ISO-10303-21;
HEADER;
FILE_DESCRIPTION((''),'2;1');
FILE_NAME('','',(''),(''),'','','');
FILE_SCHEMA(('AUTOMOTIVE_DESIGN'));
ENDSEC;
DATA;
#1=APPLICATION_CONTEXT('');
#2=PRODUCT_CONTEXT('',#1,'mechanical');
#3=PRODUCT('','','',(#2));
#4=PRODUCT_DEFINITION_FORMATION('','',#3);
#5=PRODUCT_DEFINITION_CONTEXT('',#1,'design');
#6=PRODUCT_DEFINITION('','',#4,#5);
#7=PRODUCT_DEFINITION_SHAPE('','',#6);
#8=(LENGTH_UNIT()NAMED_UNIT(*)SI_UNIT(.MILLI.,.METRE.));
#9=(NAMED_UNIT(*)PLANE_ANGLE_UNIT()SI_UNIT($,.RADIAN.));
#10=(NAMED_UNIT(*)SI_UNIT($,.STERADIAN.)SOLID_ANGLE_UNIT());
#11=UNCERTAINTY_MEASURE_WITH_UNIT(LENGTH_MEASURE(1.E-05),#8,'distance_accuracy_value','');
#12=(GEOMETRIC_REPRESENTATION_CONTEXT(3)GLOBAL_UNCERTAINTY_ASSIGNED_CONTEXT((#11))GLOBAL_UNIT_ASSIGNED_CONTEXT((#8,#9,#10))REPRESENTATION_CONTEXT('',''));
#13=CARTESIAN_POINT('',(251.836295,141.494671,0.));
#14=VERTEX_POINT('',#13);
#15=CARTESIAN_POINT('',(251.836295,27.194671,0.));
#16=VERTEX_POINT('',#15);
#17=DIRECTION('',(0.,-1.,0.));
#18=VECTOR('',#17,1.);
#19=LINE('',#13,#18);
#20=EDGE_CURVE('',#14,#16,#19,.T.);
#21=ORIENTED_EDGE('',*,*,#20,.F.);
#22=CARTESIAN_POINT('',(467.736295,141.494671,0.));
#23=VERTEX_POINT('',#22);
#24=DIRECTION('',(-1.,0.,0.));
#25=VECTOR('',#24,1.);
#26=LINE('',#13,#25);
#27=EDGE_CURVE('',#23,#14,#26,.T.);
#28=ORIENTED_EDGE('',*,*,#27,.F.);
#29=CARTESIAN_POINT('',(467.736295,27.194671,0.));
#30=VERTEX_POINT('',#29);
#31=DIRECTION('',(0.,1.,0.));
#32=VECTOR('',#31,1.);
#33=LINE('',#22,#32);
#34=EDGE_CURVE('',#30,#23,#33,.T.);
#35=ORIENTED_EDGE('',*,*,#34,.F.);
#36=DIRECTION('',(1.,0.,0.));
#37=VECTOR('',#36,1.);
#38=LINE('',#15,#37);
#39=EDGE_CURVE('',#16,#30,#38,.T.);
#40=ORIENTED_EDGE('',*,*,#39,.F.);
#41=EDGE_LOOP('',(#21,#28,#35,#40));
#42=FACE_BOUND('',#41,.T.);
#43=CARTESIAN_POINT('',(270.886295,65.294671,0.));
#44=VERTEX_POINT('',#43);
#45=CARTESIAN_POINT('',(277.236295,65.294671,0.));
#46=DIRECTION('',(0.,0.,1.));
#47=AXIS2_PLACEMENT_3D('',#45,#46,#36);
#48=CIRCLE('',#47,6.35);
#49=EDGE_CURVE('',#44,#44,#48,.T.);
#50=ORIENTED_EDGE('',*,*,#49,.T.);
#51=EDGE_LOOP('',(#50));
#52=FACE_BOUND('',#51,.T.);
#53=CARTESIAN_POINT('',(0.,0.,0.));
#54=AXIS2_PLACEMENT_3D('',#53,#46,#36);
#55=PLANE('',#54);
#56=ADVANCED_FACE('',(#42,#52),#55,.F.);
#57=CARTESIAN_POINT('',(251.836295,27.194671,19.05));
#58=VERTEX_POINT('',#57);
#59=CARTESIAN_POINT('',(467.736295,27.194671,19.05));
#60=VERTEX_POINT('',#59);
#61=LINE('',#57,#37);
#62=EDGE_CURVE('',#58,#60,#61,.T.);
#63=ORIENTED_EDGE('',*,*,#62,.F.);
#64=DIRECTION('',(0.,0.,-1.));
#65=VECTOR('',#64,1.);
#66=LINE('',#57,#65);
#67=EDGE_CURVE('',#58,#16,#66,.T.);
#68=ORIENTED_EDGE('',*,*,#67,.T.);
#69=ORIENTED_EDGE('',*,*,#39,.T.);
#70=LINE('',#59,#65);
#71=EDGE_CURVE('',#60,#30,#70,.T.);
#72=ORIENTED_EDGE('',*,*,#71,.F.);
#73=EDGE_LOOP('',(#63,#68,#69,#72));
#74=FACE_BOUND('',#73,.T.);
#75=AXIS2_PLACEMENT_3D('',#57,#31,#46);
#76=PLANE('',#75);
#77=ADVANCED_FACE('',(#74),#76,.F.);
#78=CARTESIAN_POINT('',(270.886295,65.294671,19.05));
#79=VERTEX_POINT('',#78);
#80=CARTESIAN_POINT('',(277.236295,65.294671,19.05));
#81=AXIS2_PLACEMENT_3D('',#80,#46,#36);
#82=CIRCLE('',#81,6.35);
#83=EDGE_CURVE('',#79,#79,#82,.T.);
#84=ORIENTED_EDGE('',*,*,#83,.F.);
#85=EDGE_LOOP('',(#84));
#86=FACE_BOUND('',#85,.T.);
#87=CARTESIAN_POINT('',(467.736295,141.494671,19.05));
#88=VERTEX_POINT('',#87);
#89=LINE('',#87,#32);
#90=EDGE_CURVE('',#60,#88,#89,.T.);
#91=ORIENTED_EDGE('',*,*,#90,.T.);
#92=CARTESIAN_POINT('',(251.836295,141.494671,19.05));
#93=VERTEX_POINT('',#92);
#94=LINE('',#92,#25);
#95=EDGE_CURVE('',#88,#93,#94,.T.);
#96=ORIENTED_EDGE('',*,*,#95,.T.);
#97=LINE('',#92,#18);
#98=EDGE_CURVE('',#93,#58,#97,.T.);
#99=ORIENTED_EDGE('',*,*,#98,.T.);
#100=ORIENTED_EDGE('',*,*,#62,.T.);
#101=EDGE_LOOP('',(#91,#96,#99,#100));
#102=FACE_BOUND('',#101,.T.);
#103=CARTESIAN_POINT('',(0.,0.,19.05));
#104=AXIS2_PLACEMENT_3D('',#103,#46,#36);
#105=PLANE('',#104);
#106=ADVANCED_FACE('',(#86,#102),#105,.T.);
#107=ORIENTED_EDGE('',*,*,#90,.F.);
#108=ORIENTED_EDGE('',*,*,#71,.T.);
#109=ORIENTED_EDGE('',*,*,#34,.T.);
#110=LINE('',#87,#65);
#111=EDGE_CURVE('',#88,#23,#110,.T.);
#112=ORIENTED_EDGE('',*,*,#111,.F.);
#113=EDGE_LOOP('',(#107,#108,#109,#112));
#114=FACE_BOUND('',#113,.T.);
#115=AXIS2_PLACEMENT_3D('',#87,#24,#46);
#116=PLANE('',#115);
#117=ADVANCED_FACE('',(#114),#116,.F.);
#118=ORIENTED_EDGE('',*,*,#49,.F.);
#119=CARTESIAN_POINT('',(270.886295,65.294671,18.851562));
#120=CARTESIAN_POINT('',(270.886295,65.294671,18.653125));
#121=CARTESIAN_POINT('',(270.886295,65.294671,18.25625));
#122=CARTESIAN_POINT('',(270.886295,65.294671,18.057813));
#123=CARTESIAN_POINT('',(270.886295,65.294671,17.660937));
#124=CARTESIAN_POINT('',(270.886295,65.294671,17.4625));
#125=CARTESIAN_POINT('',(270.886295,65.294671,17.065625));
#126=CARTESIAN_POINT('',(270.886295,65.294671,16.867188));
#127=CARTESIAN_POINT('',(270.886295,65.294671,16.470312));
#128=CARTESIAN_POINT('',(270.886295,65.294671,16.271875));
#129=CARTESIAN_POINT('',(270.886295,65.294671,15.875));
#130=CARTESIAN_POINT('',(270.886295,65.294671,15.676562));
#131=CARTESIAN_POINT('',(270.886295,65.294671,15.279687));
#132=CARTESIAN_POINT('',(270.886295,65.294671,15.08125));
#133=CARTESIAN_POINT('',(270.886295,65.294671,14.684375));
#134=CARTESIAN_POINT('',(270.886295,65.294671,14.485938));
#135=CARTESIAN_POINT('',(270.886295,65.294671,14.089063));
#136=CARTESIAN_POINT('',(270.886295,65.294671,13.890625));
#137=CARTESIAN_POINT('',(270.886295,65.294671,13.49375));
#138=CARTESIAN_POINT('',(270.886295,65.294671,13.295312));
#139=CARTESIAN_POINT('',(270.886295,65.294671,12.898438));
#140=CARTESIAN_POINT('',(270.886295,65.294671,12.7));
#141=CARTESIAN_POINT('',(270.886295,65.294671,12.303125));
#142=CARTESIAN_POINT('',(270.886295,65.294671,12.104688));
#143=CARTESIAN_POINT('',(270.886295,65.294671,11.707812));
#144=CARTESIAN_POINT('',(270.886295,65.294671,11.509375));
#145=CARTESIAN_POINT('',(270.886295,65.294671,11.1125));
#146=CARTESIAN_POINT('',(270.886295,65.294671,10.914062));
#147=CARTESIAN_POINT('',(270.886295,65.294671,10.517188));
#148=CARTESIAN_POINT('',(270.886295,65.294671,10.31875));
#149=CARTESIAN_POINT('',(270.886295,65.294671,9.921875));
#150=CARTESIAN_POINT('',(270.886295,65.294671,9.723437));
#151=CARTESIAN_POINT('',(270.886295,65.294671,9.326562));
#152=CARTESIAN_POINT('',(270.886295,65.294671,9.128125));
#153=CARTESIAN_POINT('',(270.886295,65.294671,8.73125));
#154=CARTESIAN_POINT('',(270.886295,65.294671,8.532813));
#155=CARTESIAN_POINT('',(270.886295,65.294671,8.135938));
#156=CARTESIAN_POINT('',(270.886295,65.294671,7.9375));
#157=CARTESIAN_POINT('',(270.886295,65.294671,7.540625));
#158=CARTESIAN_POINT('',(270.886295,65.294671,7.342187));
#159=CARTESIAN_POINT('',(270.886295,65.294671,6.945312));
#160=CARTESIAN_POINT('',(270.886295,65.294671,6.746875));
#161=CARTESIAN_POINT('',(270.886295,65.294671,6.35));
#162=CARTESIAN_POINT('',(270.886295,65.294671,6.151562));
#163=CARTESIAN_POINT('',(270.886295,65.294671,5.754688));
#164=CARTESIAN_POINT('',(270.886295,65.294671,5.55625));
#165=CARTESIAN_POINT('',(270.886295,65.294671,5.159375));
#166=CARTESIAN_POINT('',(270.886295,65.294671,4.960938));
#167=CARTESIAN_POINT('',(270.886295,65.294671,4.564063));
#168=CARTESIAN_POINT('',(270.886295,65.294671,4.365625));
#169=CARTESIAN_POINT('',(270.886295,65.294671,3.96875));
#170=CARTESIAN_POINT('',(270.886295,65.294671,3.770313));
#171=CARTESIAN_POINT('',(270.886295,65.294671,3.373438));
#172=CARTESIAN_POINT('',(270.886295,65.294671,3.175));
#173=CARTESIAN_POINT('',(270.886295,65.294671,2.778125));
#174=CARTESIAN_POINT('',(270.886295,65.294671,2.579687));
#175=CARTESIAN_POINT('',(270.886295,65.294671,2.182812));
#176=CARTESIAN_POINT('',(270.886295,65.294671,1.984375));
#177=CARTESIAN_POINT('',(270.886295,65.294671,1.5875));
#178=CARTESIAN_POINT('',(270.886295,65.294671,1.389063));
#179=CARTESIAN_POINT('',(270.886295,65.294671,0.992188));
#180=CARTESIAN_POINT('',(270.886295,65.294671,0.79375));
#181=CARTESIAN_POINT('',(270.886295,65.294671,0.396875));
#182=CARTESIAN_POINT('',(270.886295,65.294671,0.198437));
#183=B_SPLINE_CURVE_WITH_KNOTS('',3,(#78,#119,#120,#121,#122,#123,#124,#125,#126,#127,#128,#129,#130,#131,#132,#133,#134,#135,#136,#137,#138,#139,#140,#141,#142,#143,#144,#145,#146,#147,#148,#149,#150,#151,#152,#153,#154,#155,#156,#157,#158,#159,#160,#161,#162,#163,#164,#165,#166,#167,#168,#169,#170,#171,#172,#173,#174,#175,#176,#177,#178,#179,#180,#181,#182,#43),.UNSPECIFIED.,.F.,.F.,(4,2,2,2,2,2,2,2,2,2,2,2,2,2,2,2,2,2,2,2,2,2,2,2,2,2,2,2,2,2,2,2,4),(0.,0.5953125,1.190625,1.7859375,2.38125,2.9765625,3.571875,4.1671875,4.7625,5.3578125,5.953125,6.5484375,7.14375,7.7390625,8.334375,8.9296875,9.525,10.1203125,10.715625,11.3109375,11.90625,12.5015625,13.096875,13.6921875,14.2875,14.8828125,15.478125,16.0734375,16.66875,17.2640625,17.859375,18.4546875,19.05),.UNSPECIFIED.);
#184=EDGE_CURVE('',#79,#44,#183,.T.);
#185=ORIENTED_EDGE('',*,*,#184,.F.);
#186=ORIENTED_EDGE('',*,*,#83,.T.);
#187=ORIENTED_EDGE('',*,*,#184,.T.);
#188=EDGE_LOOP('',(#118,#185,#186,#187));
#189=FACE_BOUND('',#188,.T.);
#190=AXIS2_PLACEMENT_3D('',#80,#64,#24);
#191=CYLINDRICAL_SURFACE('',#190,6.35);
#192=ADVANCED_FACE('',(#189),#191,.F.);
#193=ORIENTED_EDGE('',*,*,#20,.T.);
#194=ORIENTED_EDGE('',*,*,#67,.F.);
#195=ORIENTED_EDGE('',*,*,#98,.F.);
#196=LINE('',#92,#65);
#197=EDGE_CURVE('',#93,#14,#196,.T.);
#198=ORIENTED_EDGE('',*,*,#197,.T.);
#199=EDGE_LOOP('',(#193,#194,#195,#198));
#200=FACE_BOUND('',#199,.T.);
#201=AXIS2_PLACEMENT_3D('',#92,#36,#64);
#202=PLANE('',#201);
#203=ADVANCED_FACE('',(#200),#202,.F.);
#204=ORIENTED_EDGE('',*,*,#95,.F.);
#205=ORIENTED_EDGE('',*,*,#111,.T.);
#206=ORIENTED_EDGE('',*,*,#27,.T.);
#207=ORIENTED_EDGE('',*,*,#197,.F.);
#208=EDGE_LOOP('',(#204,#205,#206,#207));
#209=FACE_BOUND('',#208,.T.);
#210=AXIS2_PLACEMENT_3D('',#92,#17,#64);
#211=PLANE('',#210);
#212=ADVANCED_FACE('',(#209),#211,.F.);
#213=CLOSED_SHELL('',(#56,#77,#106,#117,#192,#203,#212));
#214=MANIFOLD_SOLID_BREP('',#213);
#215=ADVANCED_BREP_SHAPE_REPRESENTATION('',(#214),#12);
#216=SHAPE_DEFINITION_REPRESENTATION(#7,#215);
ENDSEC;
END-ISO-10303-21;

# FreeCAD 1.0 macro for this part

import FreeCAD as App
import Part
import Sketcher
from FreeCAD import Vector
Q = App.Units.Quantity


def add_polygon(sketch, points):
    """Adds a closed chain of lines whose ends are joined by coincident constraints."""
    first, n = sketch.GeometryCount, len(points)
    for a, b in zip(points, points[1:] + points[:1]):
        sketch.addGeometry(Part.LineSegment(App.Vector(*a, 0), App.Vector(*b, 0)), False)
    for i in range(n):
        sketch.addConstraint(Sketcher.Constraint("Coincident", first + i, 2, first + (i + 1) % n, 1))

doc = App.newDocument("Part")
params = doc.addObject("Spreadsheet::Sheet", "Params")
for row, (alias, value) in enumerate([
    ("sketch1_diameter", "0.5 in"),
    ("sketch1_width", "8.5 in"),
    ("sketch1_height", "4.5 in"),
    ("pad1_length", "0.75 in"),
], start=1):
    params.set(f"A{row}", alias)
    params.set(f"B{row}", "=" + value)
    params.setAlias(f"B{row}", alias)

body = doc.addObject("PartDesign::Body", "Body")

# Sketch on XY plane
sketch1 = body.newObject("Sketcher::SketchObject", "Sketch")
sketch1.AttachmentSupport = (doc.getObject("XY_Plane"), [""])
sketch1.MapMode = "FlatFace"
add_polygon(sketch1, [(252, 141), (252, 27), (468, 27), (468, 141)])  # lines 0-3
sketch1.addGeometry(Part.Circle(Vector(277, 65, 0), Vector(0, 0, 1), 6), False)  # 4
sketch1.addConstraint([
    Sketcher.Constraint("Vertical", 0),
    Sketcher.Constraint("Horizontal", 1),
    Sketcher.Constraint("Vertical", 2),
    Sketcher.Constraint("Horizontal", 3),
    Sketcher.Constraint("Diameter", 4, Q("0.5 in")),
    Sketcher.Constraint("DistanceX", 1, 1, 1, 2, Q("8.5 in")),
    Sketcher.Constraint("DistanceY", 0, 2, 0, 1, Q("4.5 in")),
    Sketcher.Constraint("DistanceX", 0, 2, 4, 3, Q("1 in")),
    Sketcher.Constraint("DistanceY", 4, 3, 2, 2, Q("3 in")),
    Sketcher.Constraint("DistanceY", -1, 1, 4, 3, 65.294671),
    Sketcher.Constraint("DistanceX", -1, 1, 4, 3, 277.236295),
])
sketch1.setExpression("Constraints[8]", "Params.sketch1_diameter")
sketch1.setExpression("Constraints[9]", "Params.sketch1_width")
sketch1.setExpression("Constraints[10]", "Params.sketch1_height")
pad1 = body.newObject("PartDesign::Pad", "Pad")
pad1.Profile = sketch1
pad1.setExpression("Length", "Params.pad1_length")

doc.recompute()
